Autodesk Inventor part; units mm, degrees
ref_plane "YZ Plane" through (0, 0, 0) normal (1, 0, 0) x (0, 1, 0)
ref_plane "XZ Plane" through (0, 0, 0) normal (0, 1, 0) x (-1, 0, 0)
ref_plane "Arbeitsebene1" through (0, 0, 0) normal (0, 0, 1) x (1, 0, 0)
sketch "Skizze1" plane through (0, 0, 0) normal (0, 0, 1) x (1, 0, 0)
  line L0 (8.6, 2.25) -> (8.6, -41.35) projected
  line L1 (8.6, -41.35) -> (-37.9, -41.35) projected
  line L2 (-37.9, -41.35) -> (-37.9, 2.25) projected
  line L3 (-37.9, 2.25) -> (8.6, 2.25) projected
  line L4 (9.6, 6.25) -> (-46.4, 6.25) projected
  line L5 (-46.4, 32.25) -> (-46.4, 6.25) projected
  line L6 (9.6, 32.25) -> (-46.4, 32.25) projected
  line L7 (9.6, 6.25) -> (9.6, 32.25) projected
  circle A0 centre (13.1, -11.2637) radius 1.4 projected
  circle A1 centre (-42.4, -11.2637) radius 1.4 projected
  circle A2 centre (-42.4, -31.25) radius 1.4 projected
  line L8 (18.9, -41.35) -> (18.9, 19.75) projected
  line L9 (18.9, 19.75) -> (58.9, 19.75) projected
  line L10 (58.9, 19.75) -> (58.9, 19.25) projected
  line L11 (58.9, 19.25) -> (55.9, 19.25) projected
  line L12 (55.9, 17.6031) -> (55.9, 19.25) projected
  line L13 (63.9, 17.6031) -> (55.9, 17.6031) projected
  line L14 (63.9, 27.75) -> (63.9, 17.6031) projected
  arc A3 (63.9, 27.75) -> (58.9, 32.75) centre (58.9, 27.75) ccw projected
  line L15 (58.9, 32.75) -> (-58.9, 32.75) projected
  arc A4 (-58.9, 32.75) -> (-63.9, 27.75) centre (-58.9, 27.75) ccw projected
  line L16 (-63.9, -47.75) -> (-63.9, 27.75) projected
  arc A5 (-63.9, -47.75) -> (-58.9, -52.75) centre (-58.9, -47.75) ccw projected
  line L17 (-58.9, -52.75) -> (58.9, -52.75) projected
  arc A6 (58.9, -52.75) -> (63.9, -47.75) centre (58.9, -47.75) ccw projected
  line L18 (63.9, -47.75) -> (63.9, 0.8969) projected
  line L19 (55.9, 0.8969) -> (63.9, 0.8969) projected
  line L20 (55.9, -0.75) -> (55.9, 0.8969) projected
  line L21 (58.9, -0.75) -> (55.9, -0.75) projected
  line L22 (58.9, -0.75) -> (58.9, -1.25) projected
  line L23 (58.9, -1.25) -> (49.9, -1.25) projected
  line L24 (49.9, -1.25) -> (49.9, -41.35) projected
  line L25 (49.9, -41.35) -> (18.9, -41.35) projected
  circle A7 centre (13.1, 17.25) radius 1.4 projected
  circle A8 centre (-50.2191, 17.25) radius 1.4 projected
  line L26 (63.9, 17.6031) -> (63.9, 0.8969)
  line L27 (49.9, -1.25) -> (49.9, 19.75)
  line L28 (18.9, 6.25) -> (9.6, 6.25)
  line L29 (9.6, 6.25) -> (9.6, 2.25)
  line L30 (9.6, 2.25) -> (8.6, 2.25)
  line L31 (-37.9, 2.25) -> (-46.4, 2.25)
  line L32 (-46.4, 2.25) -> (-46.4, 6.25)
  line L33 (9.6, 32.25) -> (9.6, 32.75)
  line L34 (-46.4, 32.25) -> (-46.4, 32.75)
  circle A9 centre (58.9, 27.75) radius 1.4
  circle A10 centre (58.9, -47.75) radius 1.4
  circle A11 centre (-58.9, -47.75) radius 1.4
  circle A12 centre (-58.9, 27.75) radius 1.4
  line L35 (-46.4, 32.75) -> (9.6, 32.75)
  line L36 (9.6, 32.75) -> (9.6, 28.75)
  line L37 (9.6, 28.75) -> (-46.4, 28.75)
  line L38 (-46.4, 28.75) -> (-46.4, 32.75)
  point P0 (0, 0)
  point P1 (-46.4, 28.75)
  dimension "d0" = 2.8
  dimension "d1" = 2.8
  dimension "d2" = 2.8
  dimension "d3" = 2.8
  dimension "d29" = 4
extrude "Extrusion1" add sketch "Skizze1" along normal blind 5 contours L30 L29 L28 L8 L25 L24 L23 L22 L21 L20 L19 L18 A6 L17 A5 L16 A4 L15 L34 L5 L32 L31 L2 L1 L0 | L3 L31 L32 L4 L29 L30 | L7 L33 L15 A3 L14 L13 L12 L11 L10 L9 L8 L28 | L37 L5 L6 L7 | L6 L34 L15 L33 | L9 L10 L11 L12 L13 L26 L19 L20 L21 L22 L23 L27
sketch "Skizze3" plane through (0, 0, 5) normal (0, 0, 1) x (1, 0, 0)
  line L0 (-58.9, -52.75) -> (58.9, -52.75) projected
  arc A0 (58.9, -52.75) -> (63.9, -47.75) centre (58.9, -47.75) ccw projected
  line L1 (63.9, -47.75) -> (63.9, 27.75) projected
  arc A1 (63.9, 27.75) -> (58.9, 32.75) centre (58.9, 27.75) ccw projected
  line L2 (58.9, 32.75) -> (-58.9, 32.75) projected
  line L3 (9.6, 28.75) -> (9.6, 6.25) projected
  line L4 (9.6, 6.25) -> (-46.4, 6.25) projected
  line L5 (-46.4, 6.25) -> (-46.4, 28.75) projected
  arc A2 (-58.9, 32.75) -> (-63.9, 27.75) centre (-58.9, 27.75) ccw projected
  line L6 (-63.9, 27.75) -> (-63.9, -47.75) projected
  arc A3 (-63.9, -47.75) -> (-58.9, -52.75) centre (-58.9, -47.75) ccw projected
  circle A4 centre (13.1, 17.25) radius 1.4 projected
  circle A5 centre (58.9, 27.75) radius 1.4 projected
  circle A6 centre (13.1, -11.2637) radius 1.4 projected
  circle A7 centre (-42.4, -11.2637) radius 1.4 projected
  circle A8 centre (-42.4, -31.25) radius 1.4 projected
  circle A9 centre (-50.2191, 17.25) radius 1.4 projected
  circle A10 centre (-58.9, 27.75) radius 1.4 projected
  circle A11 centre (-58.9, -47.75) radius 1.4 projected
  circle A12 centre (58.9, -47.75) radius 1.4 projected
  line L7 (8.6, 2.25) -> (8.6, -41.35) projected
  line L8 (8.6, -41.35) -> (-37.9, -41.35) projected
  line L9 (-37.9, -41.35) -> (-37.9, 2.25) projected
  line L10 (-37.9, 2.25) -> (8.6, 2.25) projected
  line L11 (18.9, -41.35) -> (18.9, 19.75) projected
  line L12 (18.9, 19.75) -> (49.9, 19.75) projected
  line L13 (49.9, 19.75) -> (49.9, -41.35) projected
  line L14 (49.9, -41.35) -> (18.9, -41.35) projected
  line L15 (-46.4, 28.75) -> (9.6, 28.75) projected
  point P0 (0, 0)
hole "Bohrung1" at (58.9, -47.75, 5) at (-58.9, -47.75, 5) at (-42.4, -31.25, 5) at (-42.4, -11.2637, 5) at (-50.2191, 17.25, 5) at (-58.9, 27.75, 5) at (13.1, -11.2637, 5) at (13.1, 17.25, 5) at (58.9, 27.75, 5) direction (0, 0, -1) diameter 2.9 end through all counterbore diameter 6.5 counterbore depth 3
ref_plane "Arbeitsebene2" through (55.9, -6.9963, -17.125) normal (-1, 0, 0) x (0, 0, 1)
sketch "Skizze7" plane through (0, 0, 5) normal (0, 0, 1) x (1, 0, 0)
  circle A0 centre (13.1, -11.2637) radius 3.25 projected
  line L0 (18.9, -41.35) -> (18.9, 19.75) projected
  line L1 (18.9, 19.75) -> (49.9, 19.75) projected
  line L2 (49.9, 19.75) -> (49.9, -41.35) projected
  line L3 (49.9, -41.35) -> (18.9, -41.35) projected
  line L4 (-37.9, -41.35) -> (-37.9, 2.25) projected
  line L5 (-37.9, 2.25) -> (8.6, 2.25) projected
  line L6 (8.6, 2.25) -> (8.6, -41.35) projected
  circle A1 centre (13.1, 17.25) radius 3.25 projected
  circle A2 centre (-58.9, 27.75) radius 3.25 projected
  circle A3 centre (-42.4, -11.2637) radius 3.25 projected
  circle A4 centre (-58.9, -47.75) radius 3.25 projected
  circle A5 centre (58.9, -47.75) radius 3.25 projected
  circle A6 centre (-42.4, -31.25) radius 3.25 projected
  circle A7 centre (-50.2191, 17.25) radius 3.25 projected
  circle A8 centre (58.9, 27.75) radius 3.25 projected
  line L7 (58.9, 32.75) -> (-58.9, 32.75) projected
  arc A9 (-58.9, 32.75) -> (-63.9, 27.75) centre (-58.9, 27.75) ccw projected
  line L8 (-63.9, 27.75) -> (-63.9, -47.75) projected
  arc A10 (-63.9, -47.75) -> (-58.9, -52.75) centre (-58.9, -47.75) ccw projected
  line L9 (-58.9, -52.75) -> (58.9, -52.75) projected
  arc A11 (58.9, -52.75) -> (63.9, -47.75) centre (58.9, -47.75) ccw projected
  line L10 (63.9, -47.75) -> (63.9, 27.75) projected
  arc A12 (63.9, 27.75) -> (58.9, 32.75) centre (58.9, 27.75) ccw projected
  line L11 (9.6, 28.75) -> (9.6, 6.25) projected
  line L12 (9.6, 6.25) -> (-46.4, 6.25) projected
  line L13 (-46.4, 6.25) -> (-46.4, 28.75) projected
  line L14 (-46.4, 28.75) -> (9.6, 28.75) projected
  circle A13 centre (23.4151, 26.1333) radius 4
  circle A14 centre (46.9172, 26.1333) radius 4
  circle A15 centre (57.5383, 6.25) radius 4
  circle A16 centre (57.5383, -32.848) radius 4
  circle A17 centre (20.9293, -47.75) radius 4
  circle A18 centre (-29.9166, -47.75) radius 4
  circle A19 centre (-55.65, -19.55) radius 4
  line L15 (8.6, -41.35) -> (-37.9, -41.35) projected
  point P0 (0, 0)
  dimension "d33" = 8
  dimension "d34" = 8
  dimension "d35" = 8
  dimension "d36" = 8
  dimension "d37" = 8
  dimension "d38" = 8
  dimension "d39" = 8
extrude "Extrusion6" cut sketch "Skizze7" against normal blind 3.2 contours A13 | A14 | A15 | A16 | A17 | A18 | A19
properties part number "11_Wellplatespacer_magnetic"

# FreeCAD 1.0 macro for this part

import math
import FreeCAD as App
import Part
import Sketcher

doc = App.newDocument("Part")
body = doc.addObject("PartDesign::Body", "Body")

# Sketch on XY plane
sketch1 = body.newObject("Sketcher::SketchObject", "Sketch")
sketch1.AttachmentSupport = (doc.getObject("XY_Plane"), [""])
sketch1.MapMode = "FlatFace"
sketch1.addGeometry([
    Part.LineSegment(App.Vector(63.9, -47.8, 0), App.Vector(63.9, 27.8, 0)),  # 0
    Part.ArcOfCircle(Part.Circle(App.Vector(58.9, 27.8, 0), App.Vector(0, 0, 1), 5), math.radians(0), math.radians(90)),  # 1
    Part.LineSegment(App.Vector(58.9, 32.8, 0), App.Vector(-58.9, 32.8, 0)),  # 2
    Part.ArcOfCircle(Part.Circle(App.Vector(-58.9, 27.8, 0), App.Vector(0, 0, 1), 5), math.radians(90), math.radians(180)),  # 3
    Part.LineSegment(App.Vector(-63.9, 27.8, 0), App.Vector(-63.9, -47.8, 0)),  # 4
    Part.ArcOfCircle(Part.Circle(App.Vector(-58.9, -47.8, 0), App.Vector(0, 0, 1), 5), math.radians(180), math.radians(270)),  # 5
    Part.LineSegment(App.Vector(-58.9, -52.8, 0), App.Vector(58.9, -52.8, 0)),  # 6
    Part.ArcOfCircle(Part.Circle(App.Vector(58.9, -47.8, 0), App.Vector(0, 0, 1), 5), math.radians(-90), math.radians(0)),  # 7
    Part.LineSegment(App.Vector(18.9, -41.4, 0), App.Vector(18.9, 19.8, 0)),  # 8
    Part.LineSegment(App.Vector(18.9, 19.8, 0), App.Vector(49.9, 19.8, 0)),  # 9
    Part.LineSegment(App.Vector(49.9, 19.8, 0), App.Vector(49.9, -41.4, 0)),  # 10
    Part.LineSegment(App.Vector(49.9, -41.4, 0), App.Vector(18.9, -41.4, 0)),  # 11
    Part.LineSegment(App.Vector(-46.4, 6.2, 0), App.Vector(-46.4, 28.8, 0)),  # 12
    Part.LineSegment(App.Vector(-46.4, 28.8, 0), App.Vector(9.6, 28.8, 0)),  # 13
    Part.LineSegment(App.Vector(9.6, 28.8, 0), App.Vector(9.6, 6.2, 0)),  # 14
    Part.LineSegment(App.Vector(9.6, 6.2, 0), App.Vector(-46.4, 6.2, 0)),  # 15
    Part.LineSegment(App.Vector(-37.9, -41.4, 0), App.Vector(-37.9, 2.2, 0)),  # 16
    Part.LineSegment(App.Vector(-37.9, 2.2, 0), App.Vector(8.6, 2.2, 0)),  # 17
    Part.LineSegment(App.Vector(8.6, 2.2, 0), App.Vector(8.6, -41.4, 0)),  # 18
    Part.LineSegment(App.Vector(8.6, -41.4, 0), App.Vector(-37.9, -41.4, 0)),  # 19
    Part.Circle(App.Vector(-58.9, -47.8, 0), App.Vector(0, 0, 1), 1.4),  # 20
    Part.Circle(App.Vector(-42.4, -31.2, 0), App.Vector(0, 0, 1), 1.4),  # 21
    Part.Circle(App.Vector(-42.4, -11.3, 0), App.Vector(0, 0, 1), 1.4),  # 22
    Part.Circle(App.Vector(58.9, -47.8, 0), App.Vector(0, 0, 1), 1.4),  # 23
    Part.Circle(App.Vector(13.1, -11.3, 0), App.Vector(0, 0, 1), 1.4),  # 24
    Part.Circle(App.Vector(-50.2, 17.2, 0), App.Vector(0, 0, 1), 1.4),  # 25
    Part.Circle(App.Vector(-58.9, 27.8, 0), App.Vector(0, 0, 1), 1.4),  # 26
    Part.Circle(App.Vector(58.9, 27.8, 0), App.Vector(0, 0, 1), 1.4),  # 27
    Part.Circle(App.Vector(13.1, 17.2, 0), App.Vector(0, 0, 1), 1.4),  # 28
], False)
sketch1.addConstraint([
    Sketcher.Constraint("Tangent", 0, 2, 1, 1),
    Sketcher.Constraint("Tangent", 1, 2, 2, 1),
    Sketcher.Constraint("Tangent", 2, 2, 3, 1),
    Sketcher.Constraint("Tangent", 3, 2, 4, 1),
    Sketcher.Constraint("Tangent", 4, 2, 5, 1),
    Sketcher.Constraint("Tangent", 5, 2, 6, 1),
    Sketcher.Constraint("Tangent", 6, 2, 7, 1),
    Sketcher.Constraint("Tangent", 7, 2, 0, 1),
    Sketcher.Constraint("Coincident", 8, 2, 9, 1),
    Sketcher.Constraint("Coincident", 9, 2, 10, 1),
    Sketcher.Constraint("Coincident", 10, 2, 11, 1),
    Sketcher.Constraint("Coincident", 11, 2, 8, 1),
    Sketcher.Constraint("Coincident", 12, 2, 13, 1),
    Sketcher.Constraint("Coincident", 13, 2, 14, 1),
    Sketcher.Constraint("Coincident", 14, 2, 15, 1),
    Sketcher.Constraint("Coincident", 15, 2, 12, 1),
    Sketcher.Constraint("Coincident", 16, 2, 17, 1),
    Sketcher.Constraint("Coincident", 17, 2, 18, 1),
    Sketcher.Constraint("Coincident", 18, 2, 19, 1),
    Sketcher.Constraint("Coincident", 19, 2, 16, 1),
    Sketcher.Constraint("Vertical", 0),
    Sketcher.Constraint("Horizontal", 2),
    Sketcher.Constraint("Vertical", 4),
    Sketcher.Constraint("Horizontal", 6),
    Sketcher.Constraint("Vertical", 8),
    Sketcher.Constraint("Horizontal", 9),
    Sketcher.Constraint("Vertical", 10),
    Sketcher.Constraint("Horizontal", 11),
    Sketcher.Constraint("Vertical", 12),
    Sketcher.Constraint("Horizontal", 13),
    Sketcher.Constraint("Vertical", 14),
    Sketcher.Constraint("Horizontal", 15),
    Sketcher.Constraint("Vertical", 16),
    Sketcher.Constraint("Horizontal", 17),
    Sketcher.Constraint("Vertical", 18),
    Sketcher.Constraint("Horizontal", 19),
    Sketcher.Constraint("Coincident", 20, 3, 5, 3),
    Sketcher.Constraint("Coincident", 23, 3, 7, 3),
    Sketcher.Constraint("Coincident", 26, 3, 3, 3),
    Sketcher.Constraint("Coincident", 27, 3, 1, 3),
    Sketcher.Constraint("Equal", 1, 3),
    Sketcher.Constraint("Equal", 3, 5),
    Sketcher.Constraint("Equal", 5, 7),
    Sketcher.Constraint("Equal", 20, 21),
    Sketcher.Constraint("Equal", 21, 22),
    Sketcher.Constraint("Equal", 22, 23),
    Sketcher.Constraint("Equal", 23, 24),
    Sketcher.Constraint("Equal", 24, 25),
    Sketcher.Constraint("Equal", 25, 26),
    Sketcher.Constraint("Equal", 26, 27),
    Sketcher.Constraint("Equal", 27, 28),
    Sketcher.Constraint("Horizontal", 22, 3, 24, 3),
    Sketcher.Constraint("Horizontal", 25, 3, 28, 3),
    Sketcher.Constraint("Horizontal", 11, 2, 18, 2),
    Sketcher.Constraint("Vertical", 21, 3, 22, 3),
    Sketcher.Constraint("Vertical", 24, 3, 28, 3),
    Sketcher.Constraint("Diameter", 20, 2.8),
    Sketcher.Constraint("Radius", 1, 5.0),
    Sketcher.Constraint("DistanceY", 12, 2, 2, 2, 4.0),
    Sketcher.Constraint("DistanceX", 15, 2, 22, 3, 4.0),
    Sketcher.Constraint("DistanceY", 16, 2, 15, 2, 4.0),
    Sketcher.Constraint("DistanceX", 9, 1, 9, 2, 31.0),
    Sketcher.Constraint("DistanceX", 13, 1, 13, 2, 56.0),
    Sketcher.Constraint("DistanceX", 2, 2, 2, 1, 117.8),
    Sketcher.Constraint("DistanceX", 17, 1, 17, 2, 46.5),
    Sketcher.Constraint("DistanceY", 0, 1, 0, 2, 75.5),
    Sketcher.Constraint("DistanceY", 8, 1, 8, 2, 61.1),
    Sketcher.Constraint("DistanceY", 12, 1, 12, 2, 22.5),
    Sketcher.Constraint("DistanceY", 16, 1, 16, 2, 43.6),
    Sketcher.Constraint("DistanceY", 21, 3, 3, 3, 59.0),
    Sketcher.Constraint("DistanceY", 5, 3, 25, 3, 65.0),
    Sketcher.Constraint("DistanceX", 8, 2, 1, 3, 40.0),
    Sketcher.Constraint("DistanceX", 3, 3, 16, 2, 21.0),
    Sketcher.Constraint("DistanceX", 17, 2, 14, 2, 1.0),
    Sketcher.Constraint("DistanceX", -1, 1, 1, 3, 58.9),
    Sketcher.Constraint("DistanceX", -1, 1, 24, 3, 13.1),
    Sketcher.Constraint("DistanceY", -1, 1, 1, 3, 27.75),
    Sketcher.Constraint("DistanceX", 25, 3, -1, 1, 50.219),
    Sketcher.Constraint("DistanceY", 22, 3, -1, 1, 11.2637),
])
pad1 = body.newObject("PartDesign::Pad", "Pad")
pad1.Profile = sketch1
pad1.Length = 5

# Sketch on XY plane
sketch2 = body.newObject("Sketcher::SketchObject", "Sketch001")
sketch2.AttachmentSupport = (doc.getObject("XY_Plane"), [""])
sketch2.MapMode = "FlatFace"
sketch2.AttachmentOffset = App.Placement(App.Vector(0, 0, 5), App.Rotation())
sketch2.addGeometry([
    Part.Circle(App.Vector(58.9, -47.8, 0), App.Vector(0, 0, 1), 1.4),  # 0
    Part.Circle(App.Vector(-58.9, -47.8, 0), App.Vector(0, 0, 1), 1.4),  # 1
    Part.Circle(App.Vector(-42.4, -31.2, 0), App.Vector(0, 0, 1), 1.4),  # 2
    Part.Circle(App.Vector(-42.4, -11.3, 0), App.Vector(0, 0, 1), 1.4),  # 3
    Part.Circle(App.Vector(-50.2, 17.2, 0), App.Vector(0, 0, 1), 1.4),  # 4
    Part.Circle(App.Vector(-58.9, 27.8, 0), App.Vector(0, 0, 1), 1.4),  # 5
    Part.Circle(App.Vector(13.1, -11.3, 0), App.Vector(0, 0, 1), 1.4),  # 6
    Part.Circle(App.Vector(13.1, 17.2, 0), App.Vector(0, 0, 1), 1.4),  # 7
    Part.Circle(App.Vector(58.9, 27.8, 0), App.Vector(0, 0, 1), 1.4),  # 8
], False)
sketch2.addConstraint([
    Sketcher.Constraint("Equal", 0, 1),
    Sketcher.Constraint("Equal", 1, 2),
    Sketcher.Constraint("Equal", 2, 3),
    Sketcher.Constraint("Equal", 3, 4),
    Sketcher.Constraint("Equal", 4, 5),
    Sketcher.Constraint("Equal", 5, 6),
    Sketcher.Constraint("Equal", 6, 7),
    Sketcher.Constraint("Equal", 7, 8),
    Sketcher.Constraint("Symmetric", 0, 3, 1, 3, -2),
    Sketcher.Constraint("Symmetric", 5, 3, 8, 3, -2),
    Sketcher.Constraint("Horizontal", 3, 3, 6, 3),
    Sketcher.Constraint("Horizontal", 4, 3, 7, 3),
    Sketcher.Constraint("Vertical", 2, 3, 3, 3),
    Sketcher.Constraint("Vertical", 1, 3, 5, 3),
    Sketcher.Constraint("Vertical", 6, 3, 7, 3),
    Sketcher.Constraint("Diameter", 0, 2.9),
    Sketcher.Constraint("DistanceY", 1, 3, 4, 3, 65.0),
    Sketcher.Constraint("DistanceY", 2, 3, 5, 3, 59.0),
    Sketcher.Constraint("DistanceX", 1, 3, 6, 3, 72.0),
    Sketcher.Constraint("DistanceX", -1, 1, 0, 3, 58.9),
    Sketcher.Constraint("DistanceX", 2, 3, -1, 1, 42.4),
    Sketcher.Constraint("DistanceY", 1, 3, 2, 3, 16.5),
    Sketcher.Constraint("DistanceY", 0, 3, -1, 1, 47.75),
    Sketcher.Constraint("DistanceX", 4, 3, -1, 1, 50.219),
    Sketcher.Constraint("DistanceY", 3, 3, -1, 1, 11.2637),
])
doc.recompute()
hole = body.newObject("PartDesign::Hole", "Hole")
hole.Profile = sketch2
hole.ThreadType = "None"
hole.Diameter = 2.9
hole.DepthType = "ThroughAll"
hole.HoleCutType = "Counterbore"
hole.HoleCutDiameter = 6.5
hole.HoleCutDepth = 3

# Sketch on XY plane
sketch3 = body.newObject("Sketcher::SketchObject", "Sketch002")
sketch3.AttachmentSupport = (doc.getObject("XY_Plane"), [""])
sketch3.MapMode = "FlatFace"
sketch3.AttachmentOffset = App.Placement(App.Vector(0, 0, 5), App.Rotation())
sketch3.addGeometry([
    Part.Circle(App.Vector(23.4, 26.1, 0), App.Vector(0, 0, 1), 4),  # 0
    Part.Circle(App.Vector(46.9, 26.1, 0), App.Vector(0, 0, 1), 4),  # 1
    Part.Circle(App.Vector(57.5, 6.2, 0), App.Vector(0, 0, 1), 4),  # 2
    Part.Circle(App.Vector(57.5, -32.8, 0), App.Vector(0, 0, 1), 4),  # 3
    Part.Circle(App.Vector(20.9, -47.8, 0), App.Vector(0, 0, 1), 4),  # 4
    Part.Circle(App.Vector(-29.9, -47.8, 0), App.Vector(0, 0, 1), 4),  # 5
    Part.Circle(App.Vector(-55.6, -19.6, 0), App.Vector(0, 0, 1), 4),  # 6
], False)
sketch3.addConstraint([
    Sketcher.Constraint("Equal", 0, 1),
    Sketcher.Constraint("Equal", 1, 2),
    Sketcher.Constraint("Equal", 2, 3),
    Sketcher.Constraint("Equal", 3, 4),
    Sketcher.Constraint("Equal", 4, 5),
    Sketcher.Constraint("Equal", 5, 6),
    Sketcher.Constraint("Horizontal", 0, 3, 1, 3),
    Sketcher.Constraint("Horizontal", 4, 3, 5, 3),
    Sketcher.Constraint("Vertical", 2, 3, 3, 3),
    Sketcher.Constraint("Diameter", 0, 8.0),
    Sketcher.Constraint("DistanceY", 4, 3, 2, 3, 54.0),
    Sketcher.Constraint("DistanceY", 5, 3, 6, 3, 28.2),
    Sketcher.Constraint("DistanceY", -1, 1, 2, 3, 6.25),
    Sketcher.Constraint("DistanceX", 6, 3, -1, 1, 55.65),
    Sketcher.Constraint("DistanceX", -1, 1, 0, 3, 23.415),
    Sketcher.Constraint("DistanceY", 3, 3, -1, 1, 32.848),
    Sketcher.Constraint("DistanceX", 0, 3, 1, 3, 23.502),
    Sketcher.Constraint("DistanceX", 1, 3, 2, 3, 10.621),
    Sketcher.Constraint("DistanceX", 4, 3, 3, 3, 36.609),
    Sketcher.Constraint("DistanceX", 5, 3, 4, 3, 50.846),
    Sketcher.Constraint("DistanceY", -1, 1, 0, 3, 26.1333),
])
pocket1 = body.newObject("PartDesign::Pocket", "Pocket")
pocket1.Profile = sketch3
pocket1.Length = 3.2

doc.recompute()
